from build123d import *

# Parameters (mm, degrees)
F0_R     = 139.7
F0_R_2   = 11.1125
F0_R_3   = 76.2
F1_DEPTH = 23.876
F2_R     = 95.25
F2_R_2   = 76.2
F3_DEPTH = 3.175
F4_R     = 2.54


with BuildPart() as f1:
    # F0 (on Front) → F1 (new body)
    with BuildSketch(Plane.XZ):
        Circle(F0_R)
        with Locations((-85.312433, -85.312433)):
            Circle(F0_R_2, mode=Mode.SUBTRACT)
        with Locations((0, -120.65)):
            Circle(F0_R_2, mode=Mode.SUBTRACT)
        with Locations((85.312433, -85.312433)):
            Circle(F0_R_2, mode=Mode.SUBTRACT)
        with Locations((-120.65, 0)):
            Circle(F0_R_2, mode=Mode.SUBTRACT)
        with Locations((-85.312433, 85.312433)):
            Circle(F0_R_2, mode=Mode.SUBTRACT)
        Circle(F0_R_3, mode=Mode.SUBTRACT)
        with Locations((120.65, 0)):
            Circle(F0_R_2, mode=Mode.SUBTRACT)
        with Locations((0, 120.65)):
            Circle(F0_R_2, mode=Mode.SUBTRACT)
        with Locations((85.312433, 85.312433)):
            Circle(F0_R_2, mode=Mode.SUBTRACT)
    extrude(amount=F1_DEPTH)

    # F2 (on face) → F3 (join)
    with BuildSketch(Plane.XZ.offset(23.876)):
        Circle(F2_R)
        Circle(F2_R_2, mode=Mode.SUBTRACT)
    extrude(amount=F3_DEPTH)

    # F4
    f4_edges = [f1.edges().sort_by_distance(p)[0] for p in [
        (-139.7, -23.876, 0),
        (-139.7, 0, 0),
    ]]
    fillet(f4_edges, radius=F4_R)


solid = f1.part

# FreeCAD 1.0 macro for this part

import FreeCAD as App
import Part
import Sketcher
from FreeCAD import Vector
Q = App.Units.Quantity


def edges_at(feature, points):
    """Names of the edges that pass closest to the given points."""
    edges = feature.Shape.Edges
    near = lambda p: min(range(len(edges)), key=lambda i: edges[i].distToShape(Part.Vertex(*p))[0])
    return sorted({f"Edge{near(p) + 1}" for p in points})

doc = App.newDocument("Part")
body = doc.addObject("PartDesign::Body", "Body")

sketch1 = body.newObject("Sketcher::SketchObject", "Sketch")
sketch1.AttachmentSupport = (doc.getObject("XZ_Plane"), [""])
sketch1.MapMode = "FlatFace"
sketch1.addGeometry([
    Part.Circle(Vector(0, 0, 0), Vector(0, 0, 1), 140),
    Part.Circle(Vector(-85, -85, 0), Vector(0, 0, 1), 11),
    Part.Circle(Vector(0, -121, 0), Vector(0, 0, 1), 11),
    Part.Circle(Vector(85, -85, 0), Vector(0, 0, 1), 11),
    Part.Circle(Vector(-121, 0, 0), Vector(0, 0, 1), 11),
    Part.Circle(Vector(0, 0, 0), Vector(0, 0, 1), 76),
    Part.Circle(Vector(-85, 85, 0), Vector(0, 0, 1), 11),
    Part.Circle(Vector(0, 121, 0), Vector(0, 0, 1), 11),
    Part.Circle(Vector(121, 0, 0), Vector(0, 0, 1), 11),
    Part.Circle(Vector(85, 85, 0), Vector(0, 0, 1), 11),
], False)
sketch1.addConstraint([
    Sketcher.Constraint("Coincident", 0, 3, -1, 1),
    Sketcher.Constraint("Coincident", 5, 3, -1, 1),
    Sketcher.Constraint("Equal", 1, 2),
    Sketcher.Constraint("Equal", 2, 3),
    Sketcher.Constraint("Equal", 3, 4),
    Sketcher.Constraint("Equal", 4, 6),
    Sketcher.Constraint("Equal", 6, 7),
    Sketcher.Constraint("Equal", 7, 8),
    Sketcher.Constraint("Equal", 8, 9),
    Sketcher.Constraint("Symmetric", 3, 3, 6, 3, -1, 1),
    Sketcher.Constraint("Symmetric", 2, 3, 7, 3, -1, 1),
    Sketcher.Constraint("Symmetric", 4, 3, 8, 3, -1, 1),
    Sketcher.Constraint("Symmetric", 1, 3, 9, 3, -1, 1),
    Sketcher.Constraint("Symmetric", 1, 3, 3, 3, -2),
    Sketcher.Constraint("PointOnObject", 2, 3, -2),
    Sketcher.Constraint("PointOnObject", 4, 3, -1),
    Sketcher.Constraint("Diameter", 0, Q("11 in")),
    Sketcher.Constraint("Diameter", 5, Q("6 in")),
    Sketcher.Constraint("Diameter", 1, Q("0.875 in")),
    Sketcher.Constraint("DistanceY", 2, 3, -1, 1, Q("4.75 in")),
    Sketcher.Constraint("DistanceX", 4, 3, -1, 1, Q("4.75 in")),
    Sketcher.Constraint("DistanceX", 1, 3, -1, 1, 85.312433),
    Sketcher.Constraint("DistanceY", 1, 3, -1, 1, 85.312433),
])
pad1 = body.newObject("PartDesign::Pad", "Pad")
pad1.Profile = sketch1
pad1.Length = Q("0.94 in")

sketch2 = body.newObject("Sketcher::SketchObject", "Sketch001")
sketch2.AttachmentSupport = (doc.getObject("XZ_Plane"), [""])
sketch2.MapMode = "FlatFace"
sketch2.AttachmentOffset = App.Placement(Vector(0, 0, 0.94 * 25.4), App.Rotation())
sketch2.addGeometry([
    Part.Circle(Vector(0, 0, 0), Vector(0, 0, 1), 95),
    Part.Circle(Vector(0, 0, 0), Vector(0, 0, 1), 76),
], False)
sketch2.addConstraint([
    Sketcher.Constraint("Coincident", 0, 3, -1, 1),
    Sketcher.Constraint("Coincident", 1, 3, -1, 1),
    Sketcher.Constraint("Diameter", 1, Q("6 in")),
    Sketcher.Constraint("Diameter", 0, Q("7.5 in")),
])
pad2 = body.newObject("PartDesign::Pad", "Pad001")
pad2.Profile = sketch2
pad2.Length = Q("0.125 in")
doc.recompute()

fillet = body.newObject("PartDesign::Fillet", "Fillet")
fillet.Base = (pad2, edges_at(pad2, [(-139.7, -23.876, 0), (-139.7, 0, 0)]))
fillet.Radius = Q("0.1 in")

doc.recompute()
